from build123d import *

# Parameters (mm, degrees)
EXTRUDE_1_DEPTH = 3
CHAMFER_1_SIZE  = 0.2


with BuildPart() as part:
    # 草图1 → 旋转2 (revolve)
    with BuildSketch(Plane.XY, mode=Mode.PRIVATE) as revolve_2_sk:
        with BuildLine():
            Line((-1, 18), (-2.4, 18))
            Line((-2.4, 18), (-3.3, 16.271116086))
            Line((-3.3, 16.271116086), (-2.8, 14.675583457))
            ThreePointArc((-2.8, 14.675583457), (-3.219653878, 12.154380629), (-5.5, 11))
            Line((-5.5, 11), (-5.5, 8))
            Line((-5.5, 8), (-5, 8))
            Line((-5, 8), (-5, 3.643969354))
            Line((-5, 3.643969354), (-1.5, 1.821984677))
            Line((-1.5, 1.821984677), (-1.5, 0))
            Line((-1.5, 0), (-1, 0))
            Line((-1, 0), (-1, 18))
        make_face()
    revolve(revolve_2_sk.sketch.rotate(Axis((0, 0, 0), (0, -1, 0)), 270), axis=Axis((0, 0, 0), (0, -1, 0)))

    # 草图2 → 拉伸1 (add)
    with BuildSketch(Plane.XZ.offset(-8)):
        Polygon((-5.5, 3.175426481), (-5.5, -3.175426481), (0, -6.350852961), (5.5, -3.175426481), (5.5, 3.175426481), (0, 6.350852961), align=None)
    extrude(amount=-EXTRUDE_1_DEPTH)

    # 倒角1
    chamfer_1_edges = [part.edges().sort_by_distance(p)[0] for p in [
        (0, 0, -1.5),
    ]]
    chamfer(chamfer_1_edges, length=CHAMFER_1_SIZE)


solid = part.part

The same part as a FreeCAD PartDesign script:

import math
import FreeCAD as App
import Part
import Sketcher
from FreeCAD import Vector
Q = App.Units.Quantity


def edges_at(feature, points):
    """Names of the edges that pass closest to the given points."""
    edges = feature.Shape.Edges
    near = lambda p: min(range(len(edges)), key=lambda i: edges[i].distToShape(Part.Vertex(*p))[0])
    return sorted({f"Edge{near(p) + 1}" for p in points})

doc = App.newDocument("Part")
body = doc.addObject("PartDesign::Body", "Body")

# Sketch on XY plane
sketch1 = body.newObject("Sketcher::SketchObject", "Sketch")
sketch1.AttachmentSupport = (doc.getObject("XY_Plane"), [""])
sketch1.MapMode = "FlatFace"
sketch1.addGeometry(Part.LineSegment(Vector(-1, 18, 0), Vector(-2.4, 18, 0)), False)
sketch1.addGeometry(Part.LineSegment(Vector(-2.4, 18, 0), Vector(-3.3, 16.3, 0)), False)
sketch1.addGeometry(Part.LineSegment(Vector(-3.3, 16.3, 0), Vector(-2.8, 14.7, 0)), False)
sketch1.addGeometry(Part.ArcOfCircle(Part.Circle(Vector(-5.5, 13.8, 0), Vector(0, 0, 1), 2.8), math.radians(-90), math.radians(17)), False)
sketch1.addGeometry(Part.LineSegment(Vector(-5.5, 11, 0), Vector(-5.5, 8, 0)), False)
sketch1.addGeometry(Part.LineSegment(Vector(-5.5, 8, 0), Vector(-5, 8, 0)), False)
sketch1.addGeometry(Part.LineSegment(Vector(-5, 8, 0), Vector(-5, 3.6, 0)), False)
sketch1.addGeometry(Part.LineSegment(Vector(-5, 3.6, 0), Vector(-1.5, 1.8, 0)), False)
sketch1.addGeometry(Part.LineSegment(Vector(-1.5, 1.8, 0), Vector(-1.5, 0, 0)), False)
sketch1.addGeometry(Part.LineSegment(Vector(-1.5, 0, 0), Vector(-1, 0, 0)), False)
sketch1.addGeometry(Part.LineSegment(Vector(-1, 0, 0), Vector(-1, 18, 0)), False)
sketch1.addConstraint(Sketcher.Constraint("Coincident", 0, 2, 1, 1))
sketch1.addConstraint(Sketcher.Constraint("Coincident", 1, 2, 2, 1))
sketch1.addConstraint(Sketcher.Constraint("Tangent", 2, 2, 3, 2))
sketch1.addConstraint(Sketcher.Constraint("Coincident", 3, 1, 4, 1))
sketch1.addConstraint(Sketcher.Constraint("Coincident", 4, 2, 5, 1))
sketch1.addConstraint(Sketcher.Constraint("Coincident", 5, 2, 6, 1))
sketch1.addConstraint(Sketcher.Constraint("Coincident", 6, 2, 7, 1))
sketch1.addConstraint(Sketcher.Constraint("Coincident", 7, 2, 8, 1))
sketch1.addConstraint(Sketcher.Constraint("Coincident", 8, 2, 9, 1))
sketch1.addConstraint(Sketcher.Constraint("Coincident", 9, 2, 10, 1))
sketch1.addConstraint(Sketcher.Constraint("Coincident", 10, 2, 0, 1))
sketch1.addConstraint(Sketcher.Constraint("Horizontal", 0))
sketch1.addConstraint(Sketcher.Constraint("Vertical", 4))
sketch1.addConstraint(Sketcher.Constraint("Horizontal", 5))
sketch1.addConstraint(Sketcher.Constraint("Vertical", 6))
sketch1.addConstraint(Sketcher.Constraint("Vertical", 8))
sketch1.addConstraint(Sketcher.Constraint("Horizontal", 9))
sketch1.addConstraint(Sketcher.Constraint("Vertical", 10))
sketch1.addConstraint(Sketcher.Constraint("PointOnObject", 8, 2, -1))
sketch1.addConstraint(Sketcher.Constraint("Perpendicular", 1, 7))
sketch1.addConstraint(Sketcher.Constraint("Equal", 5, 9))
sketch1.addConstraint(Sketcher.Constraint("DistanceY", 4, 2, 4, 1, Q("3 mm")))
sketch1.addConstraint(Sketcher.Constraint("DistanceY", 10, 1, 10, 2, Q("18 mm")))
sketch1.addConstraint(Sketcher.Constraint("DistanceX", 0, 2, 0, 1, Q("1.4 mm")))
sketch1.addConstraint(Sketcher.Constraint("DistanceX", 5, 1, 5, 2, Q("0.5 mm")))
sketch1.addConstraint(Sketcher.Constraint("DistanceY", -1, 1, 3, 1, Q("11 mm")))
sketch1.addConstraint(Sketcher.Constraint("DistanceX", 5, 2, -1, 1, Q("5 mm")))
sketch1.addConstraint(Sketcher.Constraint("DistanceX", 9, 2, -1, 1, Q("1 mm")))
sketch1.addConstraint(Sketcher.Constraint("Angle", 1, Q("-117.5 deg")))
sketch1.addConstraint(Sketcher.Constraint("DistanceX", 3, 3, 7, 2, Q("4 mm")))
sketch1.addConstraint(Sketcher.Constraint("DistanceX", 1, 2, -1, 1, Q("3.3 mm")))
sketch1.addConstraint(Sketcher.Constraint("DistanceX", 2, 2, -1, 1, Q("2.8 mm")))
sketch1.addConstraint(Sketcher.Constraint("DistanceY", 6, 2, 6, 1, Q("4.356031 mm")))
revolution = body.newObject("PartDesign::Revolution", "Revolution")
revolution.Profile = sketch1
revolution.ReferenceAxis = (sketch1, ["V_Axis"])
revolution.Angle = 360

# Sketch on XZ plane
sketch2 = body.newObject("Sketcher::SketchObject", "Sketch001")
sketch2.AttachmentSupport = (doc.getObject("XZ_Plane"), [""])
sketch2.MapMode = "FlatFace"
sketch2.AttachmentOffset = App.Placement(Vector(0, 0, -8), App.Rotation())
sketch2.addGeometry(Part.LineSegment(Vector(-6, 3, 0), Vector(-6, -3, 0)), False)
sketch2.addGeometry(Part.LineSegment(Vector(-6, -3, 0), Vector(0, -6, 0)), False)
sketch2.addGeometry(Part.LineSegment(Vector(0, -6, 0), Vector(6, -3, 0)), False)
sketch2.addGeometry(Part.LineSegment(Vector(6, -3, 0), Vector(6, 3, 0)), False)
sketch2.addGeometry(Part.LineSegment(Vector(6, 3, 0), Vector(0, 6, 0)), False)
sketch2.addGeometry(Part.LineSegment(Vector(0, 6, 0), Vector(-6, 3, 0)), False)
sketch2.addConstraint(Sketcher.Constraint("Coincident", 0, 2, 1, 1))
sketch2.addConstraint(Sketcher.Constraint("Coincident", 1, 2, 2, 1))
sketch2.addConstraint(Sketcher.Constraint("Coincident", 2, 2, 3, 1))
sketch2.addConstraint(Sketcher.Constraint("Coincident", 3, 2, 4, 1))
sketch2.addConstraint(Sketcher.Constraint("Coincident", 4, 2, 5, 1))
sketch2.addConstraint(Sketcher.Constraint("Coincident", 5, 2, 0, 1))
sketch2.addConstraint(Sketcher.Constraint("Vertical", 0))
sketch2.addConstraint(Sketcher.Constraint("Vertical", 3))
sketch2.addConstraint(Sketcher.Constraint("Symmetric", 0, 2, 3, 2, -1, 1))
sketch2.addConstraint(Sketcher.Constraint("Symmetric", 1, 2, 4, 2, -1, 1))
sketch2.addConstraint(Sketcher.Constraint("PointOnObject", 1, 2, -2))
sketch2.addConstraint(Sketcher.Constraint("Parallel", 2, 5))
sketch2.addConstraint(Sketcher.Constraint("Horizontal", 0, 2, 2, 2))
sketch2.addConstraint(Sketcher.Constraint("Angle", 1, Q("-30 deg")))
sketch2.addConstraint(Sketcher.Constraint("DistanceX", 0, 2, 2, 2, Q("11 mm")))
sketch2.addConstraint(Sketcher.Constraint("DistanceY", 0, 2, 0, 1, Q("6.350853 mm")))
pad1 = body.newObject("PartDesign::Pad", "Pad")
pad1.Profile = sketch2
pad1.Length = 3
pad1.Reversed = True
doc.recompute()

chamfer = body.newObject("PartDesign::Chamfer", "Chamfer")
chamfer.Base = (pad1, edges_at(pad1, [(0, 0, -1.5)]))
chamfer.Size = 0.2

doc.recompute()
